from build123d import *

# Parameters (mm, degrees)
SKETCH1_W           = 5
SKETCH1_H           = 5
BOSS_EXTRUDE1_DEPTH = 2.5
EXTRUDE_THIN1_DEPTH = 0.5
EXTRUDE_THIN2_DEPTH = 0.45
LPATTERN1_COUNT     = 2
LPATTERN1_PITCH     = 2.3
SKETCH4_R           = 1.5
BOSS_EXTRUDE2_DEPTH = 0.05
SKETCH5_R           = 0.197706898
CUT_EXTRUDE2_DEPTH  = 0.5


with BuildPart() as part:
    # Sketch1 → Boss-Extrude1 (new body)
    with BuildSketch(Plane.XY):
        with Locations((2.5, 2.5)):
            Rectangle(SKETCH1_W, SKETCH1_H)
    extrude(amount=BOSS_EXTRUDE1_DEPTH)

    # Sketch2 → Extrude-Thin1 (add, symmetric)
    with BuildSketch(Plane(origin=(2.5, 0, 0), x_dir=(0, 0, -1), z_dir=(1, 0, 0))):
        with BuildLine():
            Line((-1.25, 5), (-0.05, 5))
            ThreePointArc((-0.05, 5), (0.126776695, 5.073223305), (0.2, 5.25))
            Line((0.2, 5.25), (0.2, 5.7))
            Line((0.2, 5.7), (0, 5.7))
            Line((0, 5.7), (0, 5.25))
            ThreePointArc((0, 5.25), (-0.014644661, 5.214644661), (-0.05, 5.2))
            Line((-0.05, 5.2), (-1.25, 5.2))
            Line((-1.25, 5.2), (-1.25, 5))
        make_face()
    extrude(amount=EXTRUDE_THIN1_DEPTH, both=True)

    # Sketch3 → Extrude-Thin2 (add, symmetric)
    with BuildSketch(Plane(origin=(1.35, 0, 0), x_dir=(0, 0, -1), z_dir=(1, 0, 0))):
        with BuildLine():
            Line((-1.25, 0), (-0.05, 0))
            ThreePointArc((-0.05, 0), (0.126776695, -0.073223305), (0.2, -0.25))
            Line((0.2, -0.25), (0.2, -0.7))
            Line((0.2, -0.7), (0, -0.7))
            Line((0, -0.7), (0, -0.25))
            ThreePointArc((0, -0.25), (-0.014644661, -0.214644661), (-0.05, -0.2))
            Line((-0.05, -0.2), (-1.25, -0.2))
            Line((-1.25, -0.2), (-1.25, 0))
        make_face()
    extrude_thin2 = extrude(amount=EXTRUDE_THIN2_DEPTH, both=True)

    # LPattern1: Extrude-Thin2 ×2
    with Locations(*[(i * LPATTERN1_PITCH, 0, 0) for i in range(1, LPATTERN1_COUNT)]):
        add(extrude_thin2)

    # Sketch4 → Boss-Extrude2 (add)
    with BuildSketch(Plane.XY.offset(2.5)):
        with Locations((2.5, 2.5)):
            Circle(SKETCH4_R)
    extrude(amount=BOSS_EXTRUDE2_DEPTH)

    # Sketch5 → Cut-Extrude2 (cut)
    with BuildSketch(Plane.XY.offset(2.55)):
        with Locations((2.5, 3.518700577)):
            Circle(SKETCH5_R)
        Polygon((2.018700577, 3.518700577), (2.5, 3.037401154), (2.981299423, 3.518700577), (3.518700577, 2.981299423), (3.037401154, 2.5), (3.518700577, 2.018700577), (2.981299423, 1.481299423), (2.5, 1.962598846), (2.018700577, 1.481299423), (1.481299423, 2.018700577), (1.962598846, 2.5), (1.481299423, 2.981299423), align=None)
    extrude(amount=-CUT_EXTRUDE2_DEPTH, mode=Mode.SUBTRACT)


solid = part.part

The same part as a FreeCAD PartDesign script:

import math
import FreeCAD as App
import Part
import Sketcher

V = App.Vector
Q = App.Units.Quantity

doc = App.newDocument("Part")
body = doc.addObject("PartDesign::Body", "Body")

sketch1 = doc.addObject("Sketcher::SketchObject", "Sketch")
body.addObject(sketch1)
sketch1.AttachmentSupport = (doc.XY_Plane, [""])
sketch1.MapMode = "FlatFace"
sketch1.addGeometry([
    Part.LineSegment(V(0, 5, 0), V(0, 0, 0)),
    Part.LineSegment(V(0, 0, 0), V(5, 0, 0)),
    Part.LineSegment(V(5, 0, 0), V(5, 5, 0)),
    Part.LineSegment(V(5, 5, 0), V(0, 5, 0)),
], False)
sketch1.addConstraint([
    Sketcher.Constraint("Coincident", 0, 2, 1, 1),
    Sketcher.Constraint("Coincident", 1, 2, 2, 1),
    Sketcher.Constraint("Coincident", 2, 2, 3, 1),
    Sketcher.Constraint("Coincident", 3, 2, 0, 1),
    Sketcher.Constraint("Vertical", 0),
    Sketcher.Constraint("Horizontal", 1),
    Sketcher.Constraint("Vertical", 2),
    Sketcher.Constraint("Horizontal", 3),
    Sketcher.Constraint("Coincident", 0, 2, -1, 1),
    Sketcher.Constraint("Equal", 3, 0),
    Sketcher.Constraint("DistanceX", 1, 1, 1, 2, Q("5 mm")),
])
pad1 = doc.addObject("PartDesign::Pad", "Pad")
body.addObject(pad1)
pad1.Profile = sketch1
pad1.Length = 2.5

sketch2 = doc.addObject("Sketcher::SketchObject", "Sketch001")
body.addObject(sketch2)
sketch2.AttachmentSupport = (doc.YZ_Plane, [""])
sketch2.MapMode = "FlatFace"
sketch2.AttachmentOffset = App.Placement(V(0, 0, 2.5), App.Rotation())
sketch2.addGeometry([
    Part.LineSegment(V(5, 1.25, 0), V(5, 0.05, 0)),
    Part.ArcOfCircle(Part.Circle(V(5.25, 0.05, 0), V(0, 0, 1), 0.25), math.radians(-180), math.radians(-90)),
    Part.LineSegment(V(5.25, -0.2, 0), V(5.7, -0.2, 0)),
    Part.LineSegment(V(5.7, -0.2, 0), V(5.7, 0, 0)),
    Part.LineSegment(V(5.7, 0, 0), V(5.25, 0, 0)),
    Part.ArcOfCircle(Part.Circle(V(5.25, 0.05, 0), V(0, 0, 1), 0.05), math.radians(180), math.radians(270)),
    Part.LineSegment(V(5.2, 0.05, 0), V(5.2, 1.25, 0)),
    Part.LineSegment(V(5.2, 1.25, 0), V(5, 1.25, 0)),
], False)
sketch2.addConstraint([
    Sketcher.Constraint("Tangent", 0, 2, 1, 1),
    Sketcher.Constraint("Tangent", 1, 2, 2, 1),
    Sketcher.Constraint("Coincident", 2, 2, 3, 1),
    Sketcher.Constraint("Coincident", 3, 2, 4, 1),
    Sketcher.Constraint("Tangent", 4, 2, 5, 2),
    Sketcher.Constraint("Tangent", 5, 1, 6, 1),
    Sketcher.Constraint("Coincident", 6, 2, 7, 1),
    Sketcher.Constraint("Coincident", 7, 2, 0, 1),
    Sketcher.Constraint("Vertical", 0),
    Sketcher.Constraint("Horizontal", 2),
    Sketcher.Constraint("Vertical", 3),
    Sketcher.Constraint("Horizontal", 4),
    Sketcher.Constraint("Vertical", 6),
    Sketcher.Constraint("Horizontal", 7),
    Sketcher.Constraint("Coincident", 5, 3, 1, 3),
    Sketcher.Constraint("PointOnObject", 3, 2, -1),
    Sketcher.Constraint("Radius", 1, Q("0.25 mm")),
    Sketcher.Constraint("Radius", 5, Q("0.05 mm")),
    Sketcher.Constraint("DistanceY", 0, 2, 0, 1, Q("1.2 mm")),
    Sketcher.Constraint("DistanceX", -1, 1, 0, 2, Q("5 mm")),
    Sketcher.Constraint("DistanceX", 2, 1, 2, 2, Q("0.45 mm")),
])
pad2 = doc.addObject("PartDesign::Pad", "Pad001")
body.addObject(pad2)
pad2.Profile = sketch2
pad2.Length = 1
pad2.Midplane = True

sketch3 = doc.addObject("Sketcher::SketchObject", "Sketch002")
body.addObject(sketch3)
sketch3.AttachmentSupport = (doc.YZ_Plane, [""])
sketch3.MapMode = "FlatFace"
sketch3.AttachmentOffset = App.Placement(V(0, 0, 1.35), App.Rotation())
sketch3.addGeometry([
    Part.LineSegment(V(0, 0.05, 0), V(0, 1.25, 0)),
    Part.LineSegment(V(0, 1.25, 0), V(-0.2, 1.25, 0)),
    Part.LineSegment(V(-0.2, 1.25, 0), V(-0.2, 0.05, 0)),
    Part.ArcOfCircle(Part.Circle(V(-0.25, 0.05, 0), V(0, 0, 1), 0.05), math.radians(-90), math.radians(0)),
    Part.LineSegment(V(-0.25, 0, 0), V(-0.7, 0, 0)),
    Part.LineSegment(V(-0.7, 0, 0), V(-0.7, -0.2, 0)),
    Part.LineSegment(V(-0.7, -0.2, 0), V(-0.25, -0.2, 0)),
    Part.ArcOfCircle(Part.Circle(V(-0.25, 0.05, 0), V(0, 0, 1), 0.25), math.radians(-90), math.radians(0)),
], False)
sketch3.addConstraint([
    Sketcher.Constraint("Coincident", 0, 2, 1, 1),
    Sketcher.Constraint("Coincident", 1, 2, 2, 1),
    Sketcher.Constraint("Tangent", 2, 2, 3, 2),
    Sketcher.Constraint("Tangent", 3, 1, 4, 1),
    Sketcher.Constraint("Coincident", 4, 2, 5, 1),
    Sketcher.Constraint("Coincident", 5, 2, 6, 1),
    Sketcher.Constraint("Tangent", 6, 2, 7, 1),
    Sketcher.Constraint("Tangent", 7, 2, 0, 1),
    Sketcher.Constraint("Vertical", 0),
    Sketcher.Constraint("Horizontal", 1),
    Sketcher.Constraint("Vertical", 2),
    Sketcher.Constraint("Horizontal", 4),
    Sketcher.Constraint("Vertical", 5),
    Sketcher.Constraint("Horizontal", 6),
    Sketcher.Constraint("Coincident", 7, 3, 3, 3),
    Sketcher.Constraint("PointOnObject", 0, 2, -2),
    Sketcher.Constraint("PointOnObject", 3, 1, -1),
    Sketcher.Constraint("Radius", 3, Q("0.05 mm")),
    Sketcher.Constraint("Radius", 7, Q("0.25 mm")),
    Sketcher.Constraint("DistanceY", 0, 1, 0, 2, Q("1.2 mm")),
    Sketcher.Constraint("DistanceX", 4, 2, 4, 1, Q("0.45 mm")),
])
pad3 = doc.addObject("PartDesign::Pad", "Pad002")
body.addObject(pad3)
pad3.Profile = sketch3
pad3.Length = 0.9
pad3.Midplane = True
doc.recompute()

linearpattern = doc.addObject("PartDesign::LinearPattern", "LinearPattern")
body.addObject(linearpattern)
linearpattern.Originals = [pad3]
linearpattern.Direction = (doc.X_Axis, [""])
linearpattern.Mode = "offset"
linearpattern.Offset = 2.3
linearpattern.Occurrences = 2
body.Tip = linearpattern

sketch4 = doc.addObject("Sketcher::SketchObject", "Sketch003")
body.addObject(sketch4)
sketch4.AttachmentSupport = (doc.XY_Plane, [""])
sketch4.MapMode = "FlatFace"
sketch4.AttachmentOffset = App.Placement(V(0, 0, 2.5), App.Rotation())
sketch4.addGeometry(Part.Circle(V(2.5, 2.5, 0), V(0, 0, 1), 1.5), False)
sketch4.addConstraint([
    Sketcher.Constraint("Diameter", 0, Q("3 mm")),
    Sketcher.Constraint("DistanceX", -1, 1, 0, 3, Q("2.5 mm")),
    Sketcher.Constraint("DistanceY", -1, 1, 0, 3, Q("2.5 mm")),
])
pad4 = doc.addObject("PartDesign::Pad", "Pad003")
body.addObject(pad4)
pad4.Profile = sketch4
pad4.Length = 0.05

sketch5 = doc.addObject("Sketcher::SketchObject", "Sketch004")
body.addObject(sketch5)
sketch5.AttachmentSupport = (doc.XY_Plane, [""])
sketch5.MapMode = "FlatFace"
sketch5.AttachmentOffset = App.Placement(V(0, 0, 2.55), App.Rotation())
sketch5.addGeometry([
    Part.Circle(V(2.5, 3.52, 0), V(0, 0, 1), 0.2),
    Part.LineSegment(V(2.5, 3.04, 0), V(2.02, 3.52, 0)),
    Part.LineSegment(V(2.02, 3.52, 0), V(1.48, 2.98, 0)),
    Part.LineSegment(V(1.48, 2.98, 0), V(1.96, 2.5, 0)),
    Part.LineSegment(V(1.96, 2.5, 0), V(1.48, 2.02, 0)),
    Part.LineSegment(V(1.48, 2.02, 0), V(2.02, 1.48, 0)),
    Part.LineSegment(V(2.02, 1.48, 0), V(2.5, 1.96, 0)),
    Part.LineSegment(V(2.5, 1.96, 0), V(2.98, 1.48, 0)),
    Part.LineSegment(V(2.98, 1.48, 0), V(3.52, 2.02, 0)),
    Part.LineSegment(V(3.52, 2.02, 0), V(3.04, 2.5, 0)),
    Part.LineSegment(V(3.04, 2.5, 0), V(3.52, 2.98, 0)),
    Part.LineSegment(V(3.52, 2.98, 0), V(2.98, 3.52, 0)),
    Part.LineSegment(V(2.98, 3.52, 0), V(2.5, 3.04, 0)),
], False)
sketch5.addConstraint([
    Sketcher.Constraint("Coincident", 1, 2, 2, 1),
    Sketcher.Constraint("Coincident", 2, 2, 3, 1),
    Sketcher.Constraint("Coincident", 3, 2, 4, 1),
    Sketcher.Constraint("Coincident", 4, 2, 5, 1),
    Sketcher.Constraint("Coincident", 5, 2, 6, 1),
    Sketcher.Constraint("Coincident", 6, 2, 7, 1),
    Sketcher.Constraint("Coincident", 7, 2, 8, 1),
    Sketcher.Constraint("Coincident", 8, 2, 9, 1),
    Sketcher.Constraint("Coincident", 9, 2, 10, 1),
    Sketcher.Constraint("Coincident", 10, 2, 11, 1),
    Sketcher.Constraint("Coincident", 11, 2, 12, 1),
    Sketcher.Constraint("Coincident", 12, 2, 1, 1),
    Sketcher.Constraint("Perpendicular", 1, 2),
    Sketcher.Constraint("Perpendicular", 2, 3),
    Sketcher.Constraint("Perpendicular", 3, 4),
    Sketcher.Constraint("Perpendicular", 4, 5),
    Sketcher.Constraint("Perpendicular", 5, 6),
    Sketcher.Constraint("Perpendicular", 6, 7),
    Sketcher.Constraint("Perpendicular", 7, 8),
    Sketcher.Constraint("Perpendicular", 8, 9),
    Sketcher.Constraint("Perpendicular", 9, 10),
    Sketcher.Constraint("Perpendicular", 10, 11),
    Sketcher.Constraint("Perpendicular", 11, 12),
    Sketcher.Constraint("Horizontal", 0, 3, 1, 2),
    Sketcher.Constraint("Horizontal", 5, 2, 7, 2),
    Sketcher.Constraint("Horizontal", 4, 2, 8, 2),
    Sketcher.Constraint("Horizontal", 3, 2, 9, 2),
    Sketcher.Constraint("Horizontal", 2, 2, 10, 2),
    Sketcher.Constraint("Horizontal", 1, 2, 11, 2),
    Sketcher.Constraint("Vertical", 2, 2, 4, 2),
    Sketcher.Constraint("Vertical", 1, 2, 5, 2),
    Sketcher.Constraint("Vertical", 0, 3, 6, 2),
    Sketcher.Constraint("Vertical", 8, 2, 10, 2),
    Sketcher.Constraint("Equal", 1, 3),
    Sketcher.Constraint("DistanceX", -1, 1, 0, 3, Q("2.5 mm")),
    Sketcher.Constraint("DistanceY", -1, 1, 3, 2, Q("2.5 mm")),
    Sketcher.Constraint("DistanceY", 4, 2, 1, 2, Q("1.5 mm")),
    Sketcher.Constraint("Distance", 2, Q("0.76 mm")),
    Sketcher.Constraint("Diameter", 0, Q("0.395414 mm")),
])
pocket1 = doc.addObject("PartDesign::Pocket", "Pocket")
body.addObject(pocket1)
pocket1.Profile = sketch5
pocket1.Length = 0.5

doc.recompute()
